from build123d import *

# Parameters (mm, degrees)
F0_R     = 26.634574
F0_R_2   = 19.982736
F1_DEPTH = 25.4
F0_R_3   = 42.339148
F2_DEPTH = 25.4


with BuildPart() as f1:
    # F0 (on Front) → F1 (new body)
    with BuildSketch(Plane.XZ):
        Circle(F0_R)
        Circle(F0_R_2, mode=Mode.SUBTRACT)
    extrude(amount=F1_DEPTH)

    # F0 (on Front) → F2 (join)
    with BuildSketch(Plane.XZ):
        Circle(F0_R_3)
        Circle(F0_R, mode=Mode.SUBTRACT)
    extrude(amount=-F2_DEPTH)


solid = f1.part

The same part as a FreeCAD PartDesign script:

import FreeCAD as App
import Part
import Sketcher
from FreeCAD import Vector
Q = App.Units.Quantity

doc = App.newDocument("Part")
params = doc.addObject("Spreadsheet::Sheet", "Params")
for row, (alias, value) in enumerate([
    ("pad1_length", "1 in"),
    ("pad2_length", "1 in"),
], start=1):
    params.set(f"A{row}", alias)
    params.set(f"B{row}", "=" + value)
    params.setAlias(f"B{row}", alias)

body = doc.addObject("PartDesign::Body", "Body")
body.AllowCompound = True

# Sketch on XZ plane
sketch1 = body.newObject("Sketcher::SketchObject", "Sketch")
sketch1.AttachmentSupport = (doc.getObject("XZ_Plane"), [""])
sketch1.MapMode = "FlatFace"
sketch1.addGeometry([
    Part.Circle(Vector(0, 0, 0), Vector(0, 0, 1), 26.634574),
    Part.Circle(Vector(0, 0, 0), Vector(0, 0, 1), 19.982736),
], False)
sketch1.addConstraint([
    Sketcher.Constraint("Coincident", 0, 3, -1, 1),
    Sketcher.Constraint("Coincident", 1, 3, -1, 1),
    Sketcher.Constraint("Diameter", 1, Q("39.965472 mm")),
    Sketcher.Constraint("Diameter", 0, Q("53.269148 mm")),
])
pad1 = body.newObject("PartDesign::Pad", "Pad")
pad1.Profile = sketch1
pad1.setExpression("Length", "Params.pad1_length")

# Sketch on XZ plane
sketch2 = body.newObject("Sketcher::SketchObject", "Sketch001")
sketch2.AttachmentSupport = (doc.getObject("XZ_Plane"), [""])
sketch2.MapMode = "FlatFace"
sketch2.addGeometry([
    Part.Circle(Vector(0, 0, 0), Vector(0, 0, 1), 42.339148),
    Part.Circle(Vector(0, 0, 0), Vector(0, 0, 1), 26.634574),
], False)
sketch2.addConstraint([
    Sketcher.Constraint("Coincident", 0, 3, -1, 1),
    Sketcher.Constraint("Coincident", 1, 3, -1, 1),
    Sketcher.Constraint("Diameter", 0, Q("84.678296 mm")),
    Sketcher.Constraint("Diameter", 1, Q("53.269148 mm")),
])
pad2 = body.newObject("PartDesign::Pad", "Pad001")
pad2.Profile = sketch2
pad2.setExpression("Length", "Params.pad2_length")
pad2.Reversed = True

doc.recompute()
